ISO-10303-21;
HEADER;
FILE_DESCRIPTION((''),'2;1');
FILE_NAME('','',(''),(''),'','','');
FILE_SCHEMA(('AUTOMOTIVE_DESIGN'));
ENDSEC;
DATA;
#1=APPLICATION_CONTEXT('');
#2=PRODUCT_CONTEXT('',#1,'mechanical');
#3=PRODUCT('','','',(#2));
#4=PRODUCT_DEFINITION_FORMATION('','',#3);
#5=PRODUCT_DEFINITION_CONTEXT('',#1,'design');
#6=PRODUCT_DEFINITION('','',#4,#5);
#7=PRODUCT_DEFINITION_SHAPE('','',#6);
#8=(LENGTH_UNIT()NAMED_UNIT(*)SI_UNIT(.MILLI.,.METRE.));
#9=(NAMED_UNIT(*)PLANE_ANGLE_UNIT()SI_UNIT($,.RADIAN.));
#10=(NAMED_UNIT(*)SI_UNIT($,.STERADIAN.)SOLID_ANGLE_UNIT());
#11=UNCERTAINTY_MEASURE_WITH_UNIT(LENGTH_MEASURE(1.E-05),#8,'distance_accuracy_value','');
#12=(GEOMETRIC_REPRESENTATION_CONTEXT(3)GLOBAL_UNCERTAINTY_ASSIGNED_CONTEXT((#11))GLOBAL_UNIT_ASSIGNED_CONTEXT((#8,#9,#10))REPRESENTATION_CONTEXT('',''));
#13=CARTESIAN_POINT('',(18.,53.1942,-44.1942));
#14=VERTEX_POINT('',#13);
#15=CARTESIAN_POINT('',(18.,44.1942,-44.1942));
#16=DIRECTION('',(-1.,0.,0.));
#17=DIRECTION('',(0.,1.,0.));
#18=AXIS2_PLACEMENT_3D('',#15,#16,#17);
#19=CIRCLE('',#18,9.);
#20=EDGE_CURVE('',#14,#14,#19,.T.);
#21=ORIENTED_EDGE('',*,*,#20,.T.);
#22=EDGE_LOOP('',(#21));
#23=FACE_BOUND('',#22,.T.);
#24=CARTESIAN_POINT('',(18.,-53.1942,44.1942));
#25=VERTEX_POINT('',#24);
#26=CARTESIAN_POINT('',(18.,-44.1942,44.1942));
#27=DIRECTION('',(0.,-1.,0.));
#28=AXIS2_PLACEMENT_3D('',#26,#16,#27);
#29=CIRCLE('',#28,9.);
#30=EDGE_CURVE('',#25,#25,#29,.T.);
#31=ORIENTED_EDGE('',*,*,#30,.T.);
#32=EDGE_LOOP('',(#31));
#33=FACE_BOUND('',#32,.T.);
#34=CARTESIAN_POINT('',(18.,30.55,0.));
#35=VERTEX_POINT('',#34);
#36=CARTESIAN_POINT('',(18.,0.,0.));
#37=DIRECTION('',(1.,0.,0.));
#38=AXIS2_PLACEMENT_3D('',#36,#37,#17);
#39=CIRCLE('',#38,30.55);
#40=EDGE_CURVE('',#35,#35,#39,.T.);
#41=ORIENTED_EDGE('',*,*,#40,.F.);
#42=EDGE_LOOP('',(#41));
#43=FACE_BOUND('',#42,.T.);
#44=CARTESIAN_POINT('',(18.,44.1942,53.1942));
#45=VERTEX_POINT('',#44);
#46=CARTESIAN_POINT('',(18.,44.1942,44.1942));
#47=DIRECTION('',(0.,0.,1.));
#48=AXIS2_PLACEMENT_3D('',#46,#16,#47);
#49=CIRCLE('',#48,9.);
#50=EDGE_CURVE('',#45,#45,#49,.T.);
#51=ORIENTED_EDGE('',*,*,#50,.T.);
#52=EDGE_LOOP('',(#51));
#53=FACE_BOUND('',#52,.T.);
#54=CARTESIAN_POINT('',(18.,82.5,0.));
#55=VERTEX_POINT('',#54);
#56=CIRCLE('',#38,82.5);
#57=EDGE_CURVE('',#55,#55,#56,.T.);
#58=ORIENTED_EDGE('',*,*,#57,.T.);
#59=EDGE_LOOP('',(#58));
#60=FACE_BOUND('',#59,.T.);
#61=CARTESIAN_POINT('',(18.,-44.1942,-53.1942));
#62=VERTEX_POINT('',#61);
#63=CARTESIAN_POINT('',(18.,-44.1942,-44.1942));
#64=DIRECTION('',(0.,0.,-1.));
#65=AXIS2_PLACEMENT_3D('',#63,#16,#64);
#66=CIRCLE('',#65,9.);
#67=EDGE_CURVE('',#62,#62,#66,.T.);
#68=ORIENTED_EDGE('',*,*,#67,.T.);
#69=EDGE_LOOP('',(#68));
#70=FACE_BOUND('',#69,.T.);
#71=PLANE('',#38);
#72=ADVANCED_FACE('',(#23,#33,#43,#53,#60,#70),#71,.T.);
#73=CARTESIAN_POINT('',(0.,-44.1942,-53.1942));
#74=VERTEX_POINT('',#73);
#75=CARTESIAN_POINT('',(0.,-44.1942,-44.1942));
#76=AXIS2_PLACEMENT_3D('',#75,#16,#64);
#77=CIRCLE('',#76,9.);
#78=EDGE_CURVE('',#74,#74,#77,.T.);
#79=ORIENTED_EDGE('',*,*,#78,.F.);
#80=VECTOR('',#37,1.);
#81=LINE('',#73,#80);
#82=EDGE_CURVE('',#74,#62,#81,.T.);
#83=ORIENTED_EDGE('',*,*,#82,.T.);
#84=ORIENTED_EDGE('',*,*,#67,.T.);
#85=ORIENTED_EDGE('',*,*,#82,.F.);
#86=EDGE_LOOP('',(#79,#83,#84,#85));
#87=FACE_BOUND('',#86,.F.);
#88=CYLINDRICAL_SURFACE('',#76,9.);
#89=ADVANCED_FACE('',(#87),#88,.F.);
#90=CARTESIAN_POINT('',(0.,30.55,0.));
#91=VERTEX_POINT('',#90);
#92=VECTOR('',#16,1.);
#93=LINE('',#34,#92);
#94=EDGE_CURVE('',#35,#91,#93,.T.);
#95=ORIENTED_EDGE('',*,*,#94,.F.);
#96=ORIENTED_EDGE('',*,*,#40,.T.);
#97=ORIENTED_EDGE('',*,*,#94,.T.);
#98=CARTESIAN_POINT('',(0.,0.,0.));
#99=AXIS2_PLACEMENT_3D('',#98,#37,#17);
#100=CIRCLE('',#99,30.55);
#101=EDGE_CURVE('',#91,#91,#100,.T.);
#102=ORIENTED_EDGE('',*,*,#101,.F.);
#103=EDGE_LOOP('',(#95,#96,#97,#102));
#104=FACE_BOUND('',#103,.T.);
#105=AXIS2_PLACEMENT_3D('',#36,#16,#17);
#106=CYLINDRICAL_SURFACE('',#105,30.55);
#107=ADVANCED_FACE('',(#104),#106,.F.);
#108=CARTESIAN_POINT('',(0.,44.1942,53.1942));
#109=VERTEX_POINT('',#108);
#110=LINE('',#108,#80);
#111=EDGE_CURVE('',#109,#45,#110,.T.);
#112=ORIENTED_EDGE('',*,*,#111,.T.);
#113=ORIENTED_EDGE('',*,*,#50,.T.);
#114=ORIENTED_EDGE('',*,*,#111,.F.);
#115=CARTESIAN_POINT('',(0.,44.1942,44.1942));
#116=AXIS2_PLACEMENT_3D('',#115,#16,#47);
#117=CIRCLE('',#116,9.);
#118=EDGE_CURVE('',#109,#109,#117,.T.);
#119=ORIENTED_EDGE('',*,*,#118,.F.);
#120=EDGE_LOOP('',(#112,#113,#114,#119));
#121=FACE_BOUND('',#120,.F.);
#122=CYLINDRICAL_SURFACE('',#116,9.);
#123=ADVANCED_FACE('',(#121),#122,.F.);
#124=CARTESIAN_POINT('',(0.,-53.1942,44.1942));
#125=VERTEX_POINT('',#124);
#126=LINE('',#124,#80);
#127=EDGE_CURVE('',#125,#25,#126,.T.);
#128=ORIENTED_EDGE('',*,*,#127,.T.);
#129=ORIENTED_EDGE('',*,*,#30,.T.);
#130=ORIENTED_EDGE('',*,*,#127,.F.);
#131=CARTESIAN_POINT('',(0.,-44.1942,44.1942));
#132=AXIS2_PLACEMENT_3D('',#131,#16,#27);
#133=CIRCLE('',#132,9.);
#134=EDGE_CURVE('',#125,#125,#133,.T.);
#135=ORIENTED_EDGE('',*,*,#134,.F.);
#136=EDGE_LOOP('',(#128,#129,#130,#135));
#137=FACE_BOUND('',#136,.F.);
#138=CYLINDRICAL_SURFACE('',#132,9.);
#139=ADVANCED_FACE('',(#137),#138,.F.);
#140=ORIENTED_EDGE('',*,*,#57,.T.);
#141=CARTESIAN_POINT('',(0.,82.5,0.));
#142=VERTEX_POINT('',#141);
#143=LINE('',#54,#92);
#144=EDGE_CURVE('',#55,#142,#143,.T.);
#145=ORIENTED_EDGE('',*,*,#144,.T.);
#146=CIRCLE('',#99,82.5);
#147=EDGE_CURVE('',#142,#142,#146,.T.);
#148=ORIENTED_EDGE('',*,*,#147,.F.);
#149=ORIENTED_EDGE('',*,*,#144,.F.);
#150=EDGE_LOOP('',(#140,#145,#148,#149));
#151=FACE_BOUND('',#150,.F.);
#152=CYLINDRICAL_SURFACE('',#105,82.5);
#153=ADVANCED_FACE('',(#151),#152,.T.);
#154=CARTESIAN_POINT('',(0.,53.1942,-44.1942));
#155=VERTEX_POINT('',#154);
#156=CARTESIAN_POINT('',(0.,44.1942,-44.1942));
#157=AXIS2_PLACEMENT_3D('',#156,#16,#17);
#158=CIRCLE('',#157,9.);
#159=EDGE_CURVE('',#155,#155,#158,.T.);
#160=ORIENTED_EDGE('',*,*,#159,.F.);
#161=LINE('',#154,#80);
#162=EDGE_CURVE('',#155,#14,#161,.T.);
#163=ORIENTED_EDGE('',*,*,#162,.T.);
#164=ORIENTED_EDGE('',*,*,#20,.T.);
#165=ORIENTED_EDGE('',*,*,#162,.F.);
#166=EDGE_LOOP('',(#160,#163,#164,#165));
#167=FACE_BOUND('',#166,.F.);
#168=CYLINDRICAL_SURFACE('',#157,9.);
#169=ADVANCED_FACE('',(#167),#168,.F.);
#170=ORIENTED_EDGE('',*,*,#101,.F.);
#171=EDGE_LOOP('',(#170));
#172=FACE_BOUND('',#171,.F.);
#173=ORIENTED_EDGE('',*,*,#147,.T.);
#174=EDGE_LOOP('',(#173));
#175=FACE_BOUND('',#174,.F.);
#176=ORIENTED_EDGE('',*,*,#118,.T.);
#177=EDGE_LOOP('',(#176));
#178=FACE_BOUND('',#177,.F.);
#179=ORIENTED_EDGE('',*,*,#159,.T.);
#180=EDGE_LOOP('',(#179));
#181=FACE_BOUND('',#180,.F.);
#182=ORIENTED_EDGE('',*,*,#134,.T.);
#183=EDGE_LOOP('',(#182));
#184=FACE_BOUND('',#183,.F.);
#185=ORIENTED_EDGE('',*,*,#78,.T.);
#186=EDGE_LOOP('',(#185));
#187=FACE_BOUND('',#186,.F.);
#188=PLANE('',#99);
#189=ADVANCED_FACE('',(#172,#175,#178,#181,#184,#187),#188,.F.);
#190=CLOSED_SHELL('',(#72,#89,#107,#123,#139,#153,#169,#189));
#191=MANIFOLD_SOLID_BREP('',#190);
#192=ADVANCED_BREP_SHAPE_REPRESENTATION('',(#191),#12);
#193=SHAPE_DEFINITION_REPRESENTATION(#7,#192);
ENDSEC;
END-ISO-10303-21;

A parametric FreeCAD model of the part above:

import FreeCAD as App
import Part
import Sketcher
Q = App.Units.Quantity

doc = App.newDocument("Part")
body = doc.addObject("PartDesign::Body", "Body")

# Sketch on XY plane
sketch1 = body.newObject("Sketcher::SketchObject", "Sketch")
sketch1.AttachmentSupport = (doc.getObject("XY_Plane"), [""])
sketch1.MapMode = "FlatFace"
sketch1.addGeometry(Part.LineSegment(App.Vector(18, 31, 0), App.Vector(18, 82, 0)), False)
sketch1.addGeometry(Part.LineSegment(App.Vector(18, 82, 0), App.Vector(0, 82, 0)), False)
sketch1.addGeometry(Part.LineSegment(App.Vector(0, 82, 0), App.Vector(0, 31, 0)), False)
sketch1.addGeometry(Part.LineSegment(App.Vector(0, 31, 0), App.Vector(18, 31, 0)), False)
sketch1.addConstraint(Sketcher.Constraint("Coincident", 0, 2, 1, 1))
sketch1.addConstraint(Sketcher.Constraint("Coincident", 1, 2, 2, 1))
sketch1.addConstraint(Sketcher.Constraint("Coincident", 2, 2, 3, 1))
sketch1.addConstraint(Sketcher.Constraint("Coincident", 3, 2, 0, 1))
sketch1.addConstraint(Sketcher.Constraint("Vertical", 0))
sketch1.addConstraint(Sketcher.Constraint("Horizontal", 1))
sketch1.addConstraint(Sketcher.Constraint("Vertical", 2))
sketch1.addConstraint(Sketcher.Constraint("Horizontal", 3))
sketch1.addConstraint(Sketcher.Constraint("PointOnObject", 1, 2, -2))
sketch1.addConstraint(Sketcher.Constraint("DistanceX", 1, 2, 1, 1, Q("18 mm")))
sketch1.addConstraint(Sketcher.Constraint("DistanceY", 0, 1, 0, 2, Q("51.95 mm")))
sketch1.addConstraint(Sketcher.Constraint("DistanceY", -1, 1, 0, 2, Q("82.5 mm")))
revolution = body.newObject("PartDesign::Revolution", "Revolution")
revolution.Profile = sketch1
revolution.ReferenceAxis = (sketch1, ["H_Axis"])
revolution.Angle = 360

# Sketch on YZ plane
sketch2 = body.newObject("Sketcher::SketchObject", "Sketch001")
sketch2.AttachmentSupport = (doc.getObject("YZ_Plane"), [""])
sketch2.MapMode = "FlatFace"
sketch2.addGeometry(Part.Circle(App.Vector(44, 44, 0), App.Vector(0, 0, 1), 9), False)
sketch2.addConstraint(Sketcher.Constraint("Diameter", 0, Q("18 mm")))
sketch2.addConstraint(Sketcher.Constraint("DistanceX", -1, 1, 0, 3, Q("44.1942 mm")))
sketch2.addConstraint(Sketcher.Constraint("DistanceY", -1, 1, 0, 3, Q("44.1942 mm")))
pocket1 = body.newObject("PartDesign::Pocket", "Pocket")
pocket1.Profile = sketch2
pocket1.Type = "ThroughAll"
pocket1.Reversed = True
doc.recompute()

polarpattern = body.newObject("PartDesign::PolarPattern", "PolarPattern")
polarpattern.Originals = [pocket1]
polarpattern.Axis = (doc.getObject("X_Axis"), [""])
polarpattern.Angle = 360
polarpattern.Occurrences = 4
body.Tip = polarpattern

doc.recompute()
